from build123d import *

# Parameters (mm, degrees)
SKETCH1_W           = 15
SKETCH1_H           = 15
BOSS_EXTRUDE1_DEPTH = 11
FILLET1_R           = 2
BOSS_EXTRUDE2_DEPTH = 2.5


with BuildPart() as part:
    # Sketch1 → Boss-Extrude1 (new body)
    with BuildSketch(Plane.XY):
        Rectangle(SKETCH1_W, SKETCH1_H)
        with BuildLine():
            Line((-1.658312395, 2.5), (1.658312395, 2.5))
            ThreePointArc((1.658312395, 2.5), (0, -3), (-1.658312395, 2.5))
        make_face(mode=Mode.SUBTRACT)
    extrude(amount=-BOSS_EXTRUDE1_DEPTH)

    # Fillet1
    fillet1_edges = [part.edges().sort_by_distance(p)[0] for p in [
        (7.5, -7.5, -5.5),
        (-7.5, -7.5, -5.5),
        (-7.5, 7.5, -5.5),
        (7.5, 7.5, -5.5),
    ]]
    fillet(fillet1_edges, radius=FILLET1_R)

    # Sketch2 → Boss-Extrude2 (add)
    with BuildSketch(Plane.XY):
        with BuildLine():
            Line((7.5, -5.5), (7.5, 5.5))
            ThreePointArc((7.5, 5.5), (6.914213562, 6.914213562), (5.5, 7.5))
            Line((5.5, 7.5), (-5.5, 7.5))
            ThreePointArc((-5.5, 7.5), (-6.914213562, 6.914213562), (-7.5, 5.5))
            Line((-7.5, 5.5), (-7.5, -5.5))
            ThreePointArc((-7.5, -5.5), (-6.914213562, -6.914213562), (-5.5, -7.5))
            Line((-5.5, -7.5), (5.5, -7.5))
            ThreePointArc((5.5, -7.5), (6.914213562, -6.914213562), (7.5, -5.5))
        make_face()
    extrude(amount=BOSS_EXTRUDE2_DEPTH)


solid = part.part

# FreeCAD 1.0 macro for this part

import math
import FreeCAD as App
import Part
import Sketcher
from FreeCAD import Vector
Q = App.Units.Quantity


def edges_at(feature, points):
    """Names of the edges that pass closest to the given points."""
    edges = feature.Shape.Edges
    near = lambda p: min(range(len(edges)), key=lambda i: edges[i].distToShape(Part.Vertex(*p))[0])
    return sorted({f"Edge{near(p) + 1}" for p in points})


def add_polygon(sketch, points):
    """Adds a closed chain of lines whose ends are joined by coincident constraints."""
    first, n = sketch.GeometryCount, len(points)
    for a, b in zip(points, points[1:] + points[:1]):
        sketch.addGeometry(Part.LineSegment(App.Vector(*a, 0), App.Vector(*b, 0)), False)
    for i in range(n):
        sketch.addConstraint(Sketcher.Constraint("Coincident", first + i, 2, first + (i + 1) % n, 1))

doc = App.newDocument("Part")
body = doc.addObject("PartDesign::Body", "Body")

sketch1 = doc.addObject("Sketcher::SketchObject", "Sketch")
body.addObject(sketch1)
sketch1.AttachmentSupport = (doc.XY_Plane, [""])
sketch1.MapMode = "FlatFace"
add_polygon(sketch1, [(-7.5, 7.5), (-7.5, -7.5), (7.5, -7.5), (7.5, 7.5)])
sketch1.addGeometry(Part.ArcOfCircle(Part.Circle(Vector(0, 0, 0), Vector(0, 0, 1), 3), math.radians(124), math.radians(416)), False)
sketch1.addGeometry(Part.LineSegment(Vector(-1.7, 2.5, 0), Vector(1.7, 2.5, 0)), False)
sketch1.addConstraint([
    Sketcher.Constraint("Coincident", 4, 1, 5, 1),
    Sketcher.Constraint("Coincident", 5, 2, 4, 2),
    Sketcher.Constraint("Vertical", 0),
    Sketcher.Constraint("Horizontal", 1),
    Sketcher.Constraint("Vertical", 2),
    Sketcher.Constraint("Horizontal", 3),
    Sketcher.Constraint("Horizontal", 5),
    Sketcher.Constraint("Coincident", 4, 3, -1, 1),
    Sketcher.Constraint("Symmetric", 0, 2, 2, 2, -1, 1),
    Sketcher.Constraint("Equal", 3, 0),
    Sketcher.Constraint("Radius", 4, Q("3 mm")),
    Sketcher.Constraint("DistanceX", 1, 1, 1, 2, Q("15 mm")),
    Sketcher.Constraint("DistanceY", 4, 1, 3, 2, Q("5 mm")),
])
pad1 = doc.addObject("PartDesign::Pad", "Pad")
body.addObject(pad1)
pad1.Profile = sketch1
pad1.Length = 11
pad1.Reversed = True
doc.recompute()

fillet = doc.addObject("PartDesign::Fillet", "Fillet")
body.addObject(fillet)
fillet.Base = (pad1, edges_at(pad1, [
    (7.5, -7.5, -5.5),
    (-7.5, -7.5, -5.5),
    (-7.5, 7.5, -5.5),
    (7.5, 7.5, -5.5),
]))
fillet.Radius = 2

sketch2 = doc.addObject("Sketcher::SketchObject", "Sketch001")
body.addObject(sketch2)
sketch2.AttachmentSupport = (doc.XY_Plane, [""])
sketch2.MapMode = "FlatFace"
sketch2.addGeometry([
    Part.LineSegment(Vector(7.5, -5.5, 0), Vector(7.5, 5.5, 0)),
    Part.ArcOfCircle(Part.Circle(Vector(5.5, 5.5, 0), Vector(0, 0, 1), 2), math.radians(0), math.radians(90)),
    Part.LineSegment(Vector(5.5, 7.5, 0), Vector(-5.5, 7.5, 0)),
    Part.ArcOfCircle(Part.Circle(Vector(-5.5, 5.5, 0), Vector(0, 0, 1), 2), math.radians(90), math.radians(180)),
    Part.LineSegment(Vector(-7.5, 5.5, 0), Vector(-7.5, -5.5, 0)),
    Part.ArcOfCircle(Part.Circle(Vector(-5.5, -5.5, 0), Vector(0, 0, 1), 2), math.radians(-180), math.radians(-90)),
    Part.LineSegment(Vector(-5.5, -7.5, 0), Vector(5.5, -7.5, 0)),
    Part.ArcOfCircle(Part.Circle(Vector(5.5, -5.5, 0), Vector(0, 0, 1), 2), math.radians(-90), math.radians(0)),
], False)
sketch2.addConstraint([
    Sketcher.Constraint("Tangent", 0, 2, 1, 1),
    Sketcher.Constraint("Tangent", 1, 2, 2, 1),
    Sketcher.Constraint("Tangent", 2, 2, 3, 1),
    Sketcher.Constraint("Tangent", 3, 2, 4, 1),
    Sketcher.Constraint("Tangent", 4, 2, 5, 1),
    Sketcher.Constraint("Tangent", 5, 2, 6, 1),
    Sketcher.Constraint("Tangent", 6, 2, 7, 1),
    Sketcher.Constraint("Tangent", 7, 2, 0, 1),
    Sketcher.Constraint("Vertical", 0),
    Sketcher.Constraint("Horizontal", 2),
    Sketcher.Constraint("Vertical", 4),
    Sketcher.Constraint("Horizontal", 6),
    Sketcher.Constraint("Equal", 1, 3),
    Sketcher.Constraint("Equal", 3, 5),
    Sketcher.Constraint("Equal", 5, 7),
    Sketcher.Constraint("Symmetric", 1, 3, 5, 3, -1, 1),
    Sketcher.Constraint("Equal", 6, 0),
    Sketcher.Constraint("Radius", 1, Q("2 mm")),
    Sketcher.Constraint("DistanceX", 2, 2, 2, 1, Q("11 mm")),
])
pad2 = doc.addObject("PartDesign::Pad", "Pad001")
body.addObject(pad2)
pad2.Profile = sketch2
pad2.Length = 2.5

doc.recompute()
